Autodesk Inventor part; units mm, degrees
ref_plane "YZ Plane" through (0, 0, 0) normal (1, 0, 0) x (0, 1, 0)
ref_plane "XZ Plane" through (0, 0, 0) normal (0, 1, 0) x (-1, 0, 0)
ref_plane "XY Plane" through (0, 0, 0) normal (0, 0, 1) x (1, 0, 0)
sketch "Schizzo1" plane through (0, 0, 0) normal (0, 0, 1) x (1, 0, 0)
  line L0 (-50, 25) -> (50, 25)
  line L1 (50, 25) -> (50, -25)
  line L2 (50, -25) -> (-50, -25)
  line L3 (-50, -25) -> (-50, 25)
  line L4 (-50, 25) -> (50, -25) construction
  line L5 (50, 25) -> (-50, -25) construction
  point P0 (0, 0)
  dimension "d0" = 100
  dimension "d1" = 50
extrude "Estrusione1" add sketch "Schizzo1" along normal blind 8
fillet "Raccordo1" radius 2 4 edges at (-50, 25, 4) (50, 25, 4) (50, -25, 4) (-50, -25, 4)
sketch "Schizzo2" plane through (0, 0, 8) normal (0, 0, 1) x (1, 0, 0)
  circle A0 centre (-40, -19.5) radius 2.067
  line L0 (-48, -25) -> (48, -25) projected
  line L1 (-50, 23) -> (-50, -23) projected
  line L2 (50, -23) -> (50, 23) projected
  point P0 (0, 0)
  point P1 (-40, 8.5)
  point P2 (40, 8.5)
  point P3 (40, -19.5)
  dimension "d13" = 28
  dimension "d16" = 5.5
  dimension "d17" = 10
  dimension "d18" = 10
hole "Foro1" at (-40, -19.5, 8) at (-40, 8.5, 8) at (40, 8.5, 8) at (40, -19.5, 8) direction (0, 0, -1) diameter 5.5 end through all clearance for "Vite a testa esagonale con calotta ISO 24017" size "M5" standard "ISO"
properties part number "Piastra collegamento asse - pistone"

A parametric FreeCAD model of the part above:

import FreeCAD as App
import Part
import Sketcher
from FreeCAD import Vector
Q = App.Units.Quantity


def edges_at(feature, points):
    """Names of the edges that pass closest to the given points."""
    edges = feature.Shape.Edges
    near = lambda p: min(range(len(edges)), key=lambda i: edges[i].distToShape(Part.Vertex(*p))[0])
    return sorted({f"Edge{near(p) + 1}" for p in points})


def add_polygon(sketch, points):
    """Adds a closed chain of lines whose ends are joined by coincident constraints."""
    first, n = sketch.GeometryCount, len(points)
    for a, b in zip(points, points[1:] + points[:1]):
        sketch.addGeometry(Part.LineSegment(App.Vector(*a, 0), App.Vector(*b, 0)), False)
    for i in range(n):
        sketch.addConstraint(Sketcher.Constraint("Coincident", first + i, 2, first + (i + 1) % n, 1))

doc = App.newDocument("Part")
body = doc.addObject("PartDesign::Body", "Body")

# Sketch on XY plane
sketch1 = doc.addObject("Sketcher::SketchObject", "Sketch")
body.addObject(sketch1)
sketch1.AttachmentSupport = (doc.XY_Plane, [""])
sketch1.MapMode = "FlatFace"
add_polygon(sketch1, [(50, 25), (-50, 25), (-50, -25), (50, -25)])  # lines 0-3
sketch1.addConstraint([
    Sketcher.Constraint("Horizontal", 0),
    Sketcher.Constraint("Vertical", 1),
    Sketcher.Constraint("Horizontal", 2),
    Sketcher.Constraint("Vertical", 3),
    Sketcher.Constraint("Symmetric", 0, 2, 2, 2, -1, 1),
    Sketcher.Constraint("DistanceX", 0, 2, 0, 1, Q("100 mm")),
    Sketcher.Constraint("DistanceY", 1, 2, 1, 1, Q("50 mm")),
])
pad1 = doc.addObject("PartDesign::Pad", "Pad")
body.addObject(pad1)
pad1.Profile = sketch1
pad1.Length = 8
doc.recompute()

fillet = doc.addObject("PartDesign::Fillet", "Fillet")
body.addObject(fillet)
fillet.Base = (pad1, edges_at(pad1, [
    (-50, 25, 4),
    (50, 25, 4),
    (50, -25, 4),
    (-50, -25, 4),
]))
fillet.Radius = 2

# Sketch on XY plane
sketch2 = doc.addObject("Sketcher::SketchObject", "Sketch001")
body.addObject(sketch2)
sketch2.AttachmentSupport = (doc.XY_Plane, [""])
sketch2.MapMode = "FlatFace"
sketch2.AttachmentOffset = App.Placement(Vector(0, 0, 8), App.Rotation())
sketch2.addGeometry([
    Part.Circle(Vector(-40, -19.5, 0), Vector(0, 0, 1), 2.75),
    Part.Circle(Vector(-40, 8.5, 0), Vector(0, 0, 1), 2.75),
    Part.Circle(Vector(40, 8.5, 0), Vector(0, 0, 1), 2.75),
    Part.Circle(Vector(40, -19.5, 0), Vector(0, 0, 1), 2.75),
], False)
sketch2.addConstraint([
    Sketcher.Constraint("Equal", 0, 1),
    Sketcher.Constraint("Equal", 1, 2),
    Sketcher.Constraint("Equal", 2, 3),
    Sketcher.Constraint("Symmetric", 1, 3, 2, 3, -2),
    Sketcher.Constraint("Symmetric", 0, 3, 3, 3, -2),
    Sketcher.Constraint("Vertical", 0, 3, 1, 3),
    Sketcher.Constraint("Diameter", 0, Q("5.5 mm")),
    Sketcher.Constraint("DistanceX", 0, 3, -1, 1, Q("40 mm")),
    Sketcher.Constraint("DistanceY", 0, 3, 1, 3, Q("28 mm")),
    Sketcher.Constraint("DistanceY", 0, 3, -1, 1, Q("19.5 mm")),
])
doc.recompute()
hole = doc.addObject("PartDesign::Hole", "Hole")
body.addObject(hole)
hole.Profile = sketch2
hole.ThreadType = "None"
hole.Diameter = 5.5
hole.DepthType = "ThroughAll"

doc.recompute()
